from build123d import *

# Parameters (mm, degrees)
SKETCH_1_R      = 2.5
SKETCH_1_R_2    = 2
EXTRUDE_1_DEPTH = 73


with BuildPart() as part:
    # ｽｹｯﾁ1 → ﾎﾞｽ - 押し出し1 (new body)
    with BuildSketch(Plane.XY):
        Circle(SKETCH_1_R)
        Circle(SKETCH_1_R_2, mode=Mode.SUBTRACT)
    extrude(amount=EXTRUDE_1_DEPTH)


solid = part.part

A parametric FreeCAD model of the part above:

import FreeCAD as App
import Part
import Sketcher

doc = App.newDocument("Part")
body = doc.addObject("PartDesign::Body", "Body")

# Sketch on XY plane
sketch1 = body.newObject("Sketcher::SketchObject", "Sketch")
sketch1.AttachmentSupport = (doc.getObject("XY_Plane"), [""])
sketch1.MapMode = "FlatFace"
sketch1.addGeometry([
    Part.Circle(App.Vector(0, 0, 0), App.Vector(0, 0, 1), 2.5),
    Part.Circle(App.Vector(0, 0, 0), App.Vector(0, 0, 1), 2),
], False)
sketch1.addConstraint([
    Sketcher.Constraint("Coincident", 0, 3, -1, 1),
    Sketcher.Constraint("Coincident", 1, 3, -1, 1),
    Sketcher.Constraint("Diameter", 0, 5.0),
    Sketcher.Constraint("Diameter", 1, 4.0),
])
pad1 = body.newObject("PartDesign::Pad", "Pad")
pad1.Profile = sketch1
pad1.Length = 73

doc.recompute()
